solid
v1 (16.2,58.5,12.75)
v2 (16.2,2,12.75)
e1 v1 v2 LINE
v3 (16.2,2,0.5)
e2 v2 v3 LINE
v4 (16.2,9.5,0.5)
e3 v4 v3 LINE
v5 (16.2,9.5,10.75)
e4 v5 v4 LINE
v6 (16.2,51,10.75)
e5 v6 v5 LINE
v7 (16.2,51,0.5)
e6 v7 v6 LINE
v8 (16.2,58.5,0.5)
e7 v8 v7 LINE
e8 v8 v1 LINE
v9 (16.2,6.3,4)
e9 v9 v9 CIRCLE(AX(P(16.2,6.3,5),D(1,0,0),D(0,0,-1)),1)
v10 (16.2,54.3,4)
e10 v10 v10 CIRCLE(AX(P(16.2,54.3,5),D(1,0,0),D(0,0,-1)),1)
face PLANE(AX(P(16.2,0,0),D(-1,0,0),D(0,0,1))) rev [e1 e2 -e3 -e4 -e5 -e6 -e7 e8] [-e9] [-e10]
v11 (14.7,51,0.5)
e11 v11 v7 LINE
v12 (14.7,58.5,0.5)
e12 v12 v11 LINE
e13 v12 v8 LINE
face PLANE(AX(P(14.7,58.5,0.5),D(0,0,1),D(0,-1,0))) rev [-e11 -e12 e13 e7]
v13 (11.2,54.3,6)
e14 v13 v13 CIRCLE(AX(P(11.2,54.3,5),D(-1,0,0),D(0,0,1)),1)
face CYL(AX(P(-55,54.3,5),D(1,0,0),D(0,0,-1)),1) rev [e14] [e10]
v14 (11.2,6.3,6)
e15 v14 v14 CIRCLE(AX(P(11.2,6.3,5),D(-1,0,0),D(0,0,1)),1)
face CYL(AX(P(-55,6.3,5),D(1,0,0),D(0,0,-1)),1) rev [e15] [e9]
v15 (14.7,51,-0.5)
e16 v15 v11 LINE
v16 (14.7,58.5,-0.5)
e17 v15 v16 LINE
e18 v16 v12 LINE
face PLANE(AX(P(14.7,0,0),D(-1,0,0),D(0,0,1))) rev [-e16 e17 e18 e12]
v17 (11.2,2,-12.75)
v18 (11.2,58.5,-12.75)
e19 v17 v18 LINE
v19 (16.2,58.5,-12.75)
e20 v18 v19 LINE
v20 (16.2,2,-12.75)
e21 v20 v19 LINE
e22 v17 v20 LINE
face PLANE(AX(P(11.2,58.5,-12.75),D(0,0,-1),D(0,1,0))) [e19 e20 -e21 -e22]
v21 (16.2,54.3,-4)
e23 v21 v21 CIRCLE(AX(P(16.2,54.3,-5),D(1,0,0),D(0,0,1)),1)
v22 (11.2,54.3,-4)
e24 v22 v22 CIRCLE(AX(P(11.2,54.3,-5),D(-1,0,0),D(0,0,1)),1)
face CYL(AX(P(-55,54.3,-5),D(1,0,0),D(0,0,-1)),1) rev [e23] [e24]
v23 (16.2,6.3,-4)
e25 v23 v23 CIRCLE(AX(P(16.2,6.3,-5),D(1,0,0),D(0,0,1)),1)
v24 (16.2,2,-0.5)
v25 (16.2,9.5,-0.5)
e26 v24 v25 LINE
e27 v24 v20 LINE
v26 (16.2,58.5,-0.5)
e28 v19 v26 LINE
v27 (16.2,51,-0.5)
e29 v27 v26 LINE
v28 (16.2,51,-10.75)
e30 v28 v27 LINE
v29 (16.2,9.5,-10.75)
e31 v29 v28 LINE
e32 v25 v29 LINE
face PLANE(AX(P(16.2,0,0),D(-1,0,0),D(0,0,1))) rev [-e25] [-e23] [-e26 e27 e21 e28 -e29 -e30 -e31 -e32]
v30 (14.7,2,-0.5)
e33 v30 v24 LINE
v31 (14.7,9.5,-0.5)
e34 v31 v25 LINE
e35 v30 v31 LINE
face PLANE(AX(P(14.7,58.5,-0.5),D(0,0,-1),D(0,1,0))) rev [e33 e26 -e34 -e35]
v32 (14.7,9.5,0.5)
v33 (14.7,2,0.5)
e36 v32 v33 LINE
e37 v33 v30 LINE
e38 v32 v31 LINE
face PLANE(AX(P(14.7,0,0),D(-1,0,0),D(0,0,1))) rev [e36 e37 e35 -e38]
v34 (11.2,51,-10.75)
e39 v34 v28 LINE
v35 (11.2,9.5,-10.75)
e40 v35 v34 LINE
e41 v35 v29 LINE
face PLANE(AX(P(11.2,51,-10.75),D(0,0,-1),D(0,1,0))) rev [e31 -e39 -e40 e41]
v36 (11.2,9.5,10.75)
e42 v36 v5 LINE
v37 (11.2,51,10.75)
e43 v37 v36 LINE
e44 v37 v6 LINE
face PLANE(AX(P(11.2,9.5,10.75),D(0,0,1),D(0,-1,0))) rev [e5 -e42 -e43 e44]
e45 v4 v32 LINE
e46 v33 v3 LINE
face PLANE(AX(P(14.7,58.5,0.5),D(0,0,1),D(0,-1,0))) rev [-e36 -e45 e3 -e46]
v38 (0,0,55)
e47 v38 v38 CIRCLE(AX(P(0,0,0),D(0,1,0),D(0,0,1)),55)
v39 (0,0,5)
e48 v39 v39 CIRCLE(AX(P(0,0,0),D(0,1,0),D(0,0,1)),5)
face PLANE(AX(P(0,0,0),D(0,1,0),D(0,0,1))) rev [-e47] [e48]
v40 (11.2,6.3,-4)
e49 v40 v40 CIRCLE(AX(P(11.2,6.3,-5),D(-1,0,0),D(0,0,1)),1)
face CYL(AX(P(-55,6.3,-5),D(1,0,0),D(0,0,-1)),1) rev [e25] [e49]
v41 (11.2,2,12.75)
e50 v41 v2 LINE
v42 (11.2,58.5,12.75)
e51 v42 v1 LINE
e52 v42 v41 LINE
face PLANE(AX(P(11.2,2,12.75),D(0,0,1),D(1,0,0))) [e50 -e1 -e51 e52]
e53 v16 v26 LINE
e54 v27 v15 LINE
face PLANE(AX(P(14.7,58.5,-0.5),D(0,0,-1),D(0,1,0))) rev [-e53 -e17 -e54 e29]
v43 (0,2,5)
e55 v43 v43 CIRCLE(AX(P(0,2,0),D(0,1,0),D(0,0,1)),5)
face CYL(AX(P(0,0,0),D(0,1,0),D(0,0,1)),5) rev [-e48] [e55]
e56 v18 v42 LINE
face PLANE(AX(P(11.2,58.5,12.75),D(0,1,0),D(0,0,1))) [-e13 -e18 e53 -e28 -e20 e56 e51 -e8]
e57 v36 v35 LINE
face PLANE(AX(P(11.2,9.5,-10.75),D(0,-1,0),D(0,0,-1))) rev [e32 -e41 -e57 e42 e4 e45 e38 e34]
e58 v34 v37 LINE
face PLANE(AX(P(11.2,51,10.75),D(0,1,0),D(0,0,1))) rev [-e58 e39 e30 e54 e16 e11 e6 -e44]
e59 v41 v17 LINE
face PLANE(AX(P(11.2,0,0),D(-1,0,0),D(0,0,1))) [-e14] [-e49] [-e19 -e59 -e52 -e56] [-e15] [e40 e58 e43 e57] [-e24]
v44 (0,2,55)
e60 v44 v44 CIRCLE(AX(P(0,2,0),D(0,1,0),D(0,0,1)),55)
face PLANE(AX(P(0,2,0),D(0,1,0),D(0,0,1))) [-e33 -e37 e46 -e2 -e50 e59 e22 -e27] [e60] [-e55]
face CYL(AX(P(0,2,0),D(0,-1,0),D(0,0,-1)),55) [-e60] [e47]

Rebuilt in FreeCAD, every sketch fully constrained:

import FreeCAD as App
import Part
import Sketcher


def add_polygon(sketch, points):
    """Adds a closed chain of lines whose ends are joined by coincident constraints."""
    first, n = sketch.GeometryCount, len(points)
    for a, b in zip(points, points[1:] + points[:1]):
        sketch.addGeometry(Part.LineSegment(App.Vector(*a, 0), App.Vector(*b, 0)), False)
    for i in range(n):
        sketch.addConstraint(Sketcher.Constraint("Coincident", first + i, 2, first + (i + 1) % n, 1))

doc = App.newDocument("Part")
params = doc.addObject("Spreadsheet::Sheet", "Params")
for row, (alias, value) in enumerate([
    ("sketch1_diameter", "110 mm"),
    ("pad1_length", "2 mm"),
    ("sketch2_diameter", "10 mm"),
    ("sketch3_width", "56.5 mm"),
    ("sketch3_width2", "41.5 mm"),
    ("sketch3_height", "25.5 mm"),
    ("sketch3_height2", "21.5 mm"),
    ("pad2_length", "5 mm"),
    ("sketch4_diameter", "2 mm"),
    ("sketch5_height", "1 mm"),
    ("sketch5_width", "56.5 mm"),
    ("pocket3_length", "1.5 mm"),
], start=1):
    params.set(f"A{row}", alias)
    params.set(f"B{row}", "=" + value)
    params.setAlias(f"B{row}", alias)

body = doc.addObject("PartDesign::Body", "Body")

sketch1 = doc.addObject("Sketcher::SketchObject", "Sketch")
body.addObject(sketch1)
sketch1.AttachmentSupport = (doc.XZ_Plane, [""])
sketch1.MapMode = "FlatFace"
sketch1.addGeometry(Part.Circle(App.Vector(0, 0, 0), App.Vector(0, 0, 1), 55), False)
sketch1.addConstraint(Sketcher.Constraint("Coincident", 0, 3, -1, 1))
sketch1.addConstraint(Sketcher.Constraint("Diameter", 0, 110.0))
sketch1.setExpression("Constraints[1]", "Params.sketch1_diameter")
pad1 = doc.addObject("PartDesign::Pad", "Pad")
body.addObject(pad1)
pad1.Profile = sketch1
pad1.setExpression("Length", "Params.pad1_length")
pad1.Reversed = True

sketch2 = doc.addObject("Sketcher::SketchObject", "Sketch001")
body.addObject(sketch2)
sketch2.AttachmentSupport = (doc.XZ_Plane, [""])
sketch2.MapMode = "FlatFace"
sketch2.AttachmentOffset = App.Placement(App.Vector(0, 0, -2), App.Rotation())
sketch2.addGeometry(Part.Circle(App.Vector(0, 0, 0), App.Vector(0, 0, 1), 5), False)
sketch2.addConstraint(Sketcher.Constraint("Coincident", 0, 3, -1, 1))
sketch2.addConstraint(Sketcher.Constraint("Diameter", 0, 10.0))
sketch2.setExpression("Constraints[1]", "Params.sketch2_diameter")
pocket1 = doc.addObject("PartDesign::Pocket", "Pocket")
body.addObject(pocket1)
pocket1.Profile = sketch2
pocket1.Type = "ThroughAll"
pocket1.Reversed = True

sketch3 = doc.addObject("Sketcher::SketchObject", "Sketch002")
body.addObject(sketch3)
sketch3.AttachmentSupport = (doc.YZ_Plane, [""])
sketch3.MapMode = "FlatFace"
sketch3.AttachmentOffset = App.Placement(App.Vector(0, 0, 16.2), App.Rotation())
add_polygon(sketch3, [(58, 13), (2, 13), (2, -13), (58, -13)])
add_polygon(sketch3, [(10, -11), (10, 11), (51, 11), (51, -11)])
sketch3.addConstraint(Sketcher.Constraint("Horizontal", 0))
sketch3.addConstraint(Sketcher.Constraint("Vertical", 1))
sketch3.addConstraint(Sketcher.Constraint("Horizontal", 2))
sketch3.addConstraint(Sketcher.Constraint("Vertical", 3))
sketch3.addConstraint(Sketcher.Constraint("Vertical", 4))
sketch3.addConstraint(Sketcher.Constraint("Horizontal", 5))
sketch3.addConstraint(Sketcher.Constraint("Vertical", 6))
sketch3.addConstraint(Sketcher.Constraint("Horizontal", 7))
sketch3.addConstraint(Sketcher.Constraint("DistanceX", 0, 2, 0, 1, 56.5))
sketch3.addConstraint(Sketcher.Constraint("DistanceX", 5, 1, 5, 2, 41.5))
sketch3.addConstraint(Sketcher.Constraint("DistanceY", 1, 2, 1, 1, 25.5))
sketch3.addConstraint(Sketcher.Constraint("DistanceY", 4, 1, 4, 2, 21.5))
sketch3.addConstraint(Sketcher.Constraint("DistanceX", -1, 1, 0, 2, 2.0))
sketch3.addConstraint(Sketcher.Constraint("DistanceX", -1, 1, 5, 2, 51.0))
sketch3.addConstraint(Sketcher.Constraint("DistanceY", 4, 2, 0, 2, 2.0))
sketch3.addConstraint(Sketcher.Constraint("DistanceY", -1, 1, 0, 2, 12.75))
sketch3.setExpression("Constraints[16]", "Params.sketch3_width")
sketch3.setExpression("Constraints[17]", "Params.sketch3_width2")
sketch3.setExpression("Constraints[18]", "Params.sketch3_height")
sketch3.setExpression("Constraints[19]", "Params.sketch3_height2")
pad2 = doc.addObject("PartDesign::Pad", "Pad001")
body.addObject(pad2)
pad2.Profile = sketch3
pad2.setExpression("Length", "Params.pad2_length")
pad2.Reversed = True

sketch4 = doc.addObject("Sketcher::SketchObject", "Sketch003")
body.addObject(sketch4)
sketch4.AttachmentSupport = (doc.YZ_Plane, [""])
sketch4.MapMode = "FlatFace"
sketch4.AttachmentOffset = App.Placement(App.Vector(0, 0, 16.2), App.Rotation())
sketch4.addGeometry(Part.Circle(App.Vector(54.3, 5, 0), App.Vector(0, 0, 1), 1), False)
sketch4.addGeometry(Part.Circle(App.Vector(6.3, 5, 0), App.Vector(0, 0, 1), 1), False)
sketch4.addGeometry(Part.Circle(App.Vector(6.3, -5, 0), App.Vector(0, 0, 1), 1), False)
sketch4.addGeometry(Part.Circle(App.Vector(54.3, -5, 0), App.Vector(0, 0, 1), 1), False)
sketch4.addConstraint(Sketcher.Constraint("Equal", 0, 1))
sketch4.addConstraint(Sketcher.Constraint("Equal", 1, 2))
sketch4.addConstraint(Sketcher.Constraint("Equal", 2, 3))
sketch4.addConstraint(Sketcher.Constraint("Symmetric", 1, 3, 2, 3, -1))
sketch4.addConstraint(Sketcher.Constraint("Symmetric", 0, 3, 3, 3, -1))
sketch4.addConstraint(Sketcher.Constraint("Horizontal", 0, 3, 1, 3))
sketch4.addConstraint(Sketcher.Constraint("Diameter", 0, 2.0))
sketch4.addConstraint(Sketcher.Constraint("DistanceY", -1, 1, 0, 3, 5.0))
sketch4.addConstraint(Sketcher.Constraint("DistanceX", 1, 3, 0, 3, 48.0))
sketch4.addConstraint(Sketcher.Constraint("DistanceX", -1, 1, 0, 3, 54.3))
sketch4.setExpression("Constraints[6]", "Params.sketch4_diameter")
pocket2 = doc.addObject("PartDesign::Pocket", "Pocket001")
body.addObject(pocket2)
pocket2.Profile = sketch4
pocket2.Type = "ThroughAll"

sketch5 = doc.addObject("Sketcher::SketchObject", "Sketch004")
body.addObject(sketch5)
sketch5.AttachmentSupport = (doc.YZ_Plane, [""])
sketch5.MapMode = "FlatFace"
sketch5.AttachmentOffset = App.Placement(App.Vector(0, 0, 16.2), App.Rotation())
add_polygon(sketch5, [(58.5, 0.5), (2, 0.5), (2, -0.5), (58.5, -0.5)])
sketch5.addConstraint(Sketcher.Constraint("Horizontal", 0))
sketch5.addConstraint(Sketcher.Constraint("Vertical", 1))
sketch5.addConstraint(Sketcher.Constraint("Horizontal", 2))
sketch5.addConstraint(Sketcher.Constraint("Vertical", 3))
sketch5.addConstraint(Sketcher.Constraint("DistanceY", 1, 2, 1, 1, 1.0))
sketch5.addConstraint(Sketcher.Constraint("DistanceX", 0, 2, 0, 1, 56.5))
sketch5.addConstraint(Sketcher.Constraint("DistanceX", -1, 1, 0, 2, 2.0))
sketch5.addConstraint(Sketcher.Constraint("DistanceY", -1, 1, 0, 2, 0.5))
sketch5.setExpression("Constraints[8]", "Params.sketch5_height")
sketch5.setExpression("Constraints[9]", "Params.sketch5_width")
pocket3 = doc.addObject("PartDesign::Pocket", "Pocket002")
body.addObject(pocket3)
pocket3.Profile = sketch5
pocket3.setExpression("Length", "Params.pocket3_length")

doc.recompute()
